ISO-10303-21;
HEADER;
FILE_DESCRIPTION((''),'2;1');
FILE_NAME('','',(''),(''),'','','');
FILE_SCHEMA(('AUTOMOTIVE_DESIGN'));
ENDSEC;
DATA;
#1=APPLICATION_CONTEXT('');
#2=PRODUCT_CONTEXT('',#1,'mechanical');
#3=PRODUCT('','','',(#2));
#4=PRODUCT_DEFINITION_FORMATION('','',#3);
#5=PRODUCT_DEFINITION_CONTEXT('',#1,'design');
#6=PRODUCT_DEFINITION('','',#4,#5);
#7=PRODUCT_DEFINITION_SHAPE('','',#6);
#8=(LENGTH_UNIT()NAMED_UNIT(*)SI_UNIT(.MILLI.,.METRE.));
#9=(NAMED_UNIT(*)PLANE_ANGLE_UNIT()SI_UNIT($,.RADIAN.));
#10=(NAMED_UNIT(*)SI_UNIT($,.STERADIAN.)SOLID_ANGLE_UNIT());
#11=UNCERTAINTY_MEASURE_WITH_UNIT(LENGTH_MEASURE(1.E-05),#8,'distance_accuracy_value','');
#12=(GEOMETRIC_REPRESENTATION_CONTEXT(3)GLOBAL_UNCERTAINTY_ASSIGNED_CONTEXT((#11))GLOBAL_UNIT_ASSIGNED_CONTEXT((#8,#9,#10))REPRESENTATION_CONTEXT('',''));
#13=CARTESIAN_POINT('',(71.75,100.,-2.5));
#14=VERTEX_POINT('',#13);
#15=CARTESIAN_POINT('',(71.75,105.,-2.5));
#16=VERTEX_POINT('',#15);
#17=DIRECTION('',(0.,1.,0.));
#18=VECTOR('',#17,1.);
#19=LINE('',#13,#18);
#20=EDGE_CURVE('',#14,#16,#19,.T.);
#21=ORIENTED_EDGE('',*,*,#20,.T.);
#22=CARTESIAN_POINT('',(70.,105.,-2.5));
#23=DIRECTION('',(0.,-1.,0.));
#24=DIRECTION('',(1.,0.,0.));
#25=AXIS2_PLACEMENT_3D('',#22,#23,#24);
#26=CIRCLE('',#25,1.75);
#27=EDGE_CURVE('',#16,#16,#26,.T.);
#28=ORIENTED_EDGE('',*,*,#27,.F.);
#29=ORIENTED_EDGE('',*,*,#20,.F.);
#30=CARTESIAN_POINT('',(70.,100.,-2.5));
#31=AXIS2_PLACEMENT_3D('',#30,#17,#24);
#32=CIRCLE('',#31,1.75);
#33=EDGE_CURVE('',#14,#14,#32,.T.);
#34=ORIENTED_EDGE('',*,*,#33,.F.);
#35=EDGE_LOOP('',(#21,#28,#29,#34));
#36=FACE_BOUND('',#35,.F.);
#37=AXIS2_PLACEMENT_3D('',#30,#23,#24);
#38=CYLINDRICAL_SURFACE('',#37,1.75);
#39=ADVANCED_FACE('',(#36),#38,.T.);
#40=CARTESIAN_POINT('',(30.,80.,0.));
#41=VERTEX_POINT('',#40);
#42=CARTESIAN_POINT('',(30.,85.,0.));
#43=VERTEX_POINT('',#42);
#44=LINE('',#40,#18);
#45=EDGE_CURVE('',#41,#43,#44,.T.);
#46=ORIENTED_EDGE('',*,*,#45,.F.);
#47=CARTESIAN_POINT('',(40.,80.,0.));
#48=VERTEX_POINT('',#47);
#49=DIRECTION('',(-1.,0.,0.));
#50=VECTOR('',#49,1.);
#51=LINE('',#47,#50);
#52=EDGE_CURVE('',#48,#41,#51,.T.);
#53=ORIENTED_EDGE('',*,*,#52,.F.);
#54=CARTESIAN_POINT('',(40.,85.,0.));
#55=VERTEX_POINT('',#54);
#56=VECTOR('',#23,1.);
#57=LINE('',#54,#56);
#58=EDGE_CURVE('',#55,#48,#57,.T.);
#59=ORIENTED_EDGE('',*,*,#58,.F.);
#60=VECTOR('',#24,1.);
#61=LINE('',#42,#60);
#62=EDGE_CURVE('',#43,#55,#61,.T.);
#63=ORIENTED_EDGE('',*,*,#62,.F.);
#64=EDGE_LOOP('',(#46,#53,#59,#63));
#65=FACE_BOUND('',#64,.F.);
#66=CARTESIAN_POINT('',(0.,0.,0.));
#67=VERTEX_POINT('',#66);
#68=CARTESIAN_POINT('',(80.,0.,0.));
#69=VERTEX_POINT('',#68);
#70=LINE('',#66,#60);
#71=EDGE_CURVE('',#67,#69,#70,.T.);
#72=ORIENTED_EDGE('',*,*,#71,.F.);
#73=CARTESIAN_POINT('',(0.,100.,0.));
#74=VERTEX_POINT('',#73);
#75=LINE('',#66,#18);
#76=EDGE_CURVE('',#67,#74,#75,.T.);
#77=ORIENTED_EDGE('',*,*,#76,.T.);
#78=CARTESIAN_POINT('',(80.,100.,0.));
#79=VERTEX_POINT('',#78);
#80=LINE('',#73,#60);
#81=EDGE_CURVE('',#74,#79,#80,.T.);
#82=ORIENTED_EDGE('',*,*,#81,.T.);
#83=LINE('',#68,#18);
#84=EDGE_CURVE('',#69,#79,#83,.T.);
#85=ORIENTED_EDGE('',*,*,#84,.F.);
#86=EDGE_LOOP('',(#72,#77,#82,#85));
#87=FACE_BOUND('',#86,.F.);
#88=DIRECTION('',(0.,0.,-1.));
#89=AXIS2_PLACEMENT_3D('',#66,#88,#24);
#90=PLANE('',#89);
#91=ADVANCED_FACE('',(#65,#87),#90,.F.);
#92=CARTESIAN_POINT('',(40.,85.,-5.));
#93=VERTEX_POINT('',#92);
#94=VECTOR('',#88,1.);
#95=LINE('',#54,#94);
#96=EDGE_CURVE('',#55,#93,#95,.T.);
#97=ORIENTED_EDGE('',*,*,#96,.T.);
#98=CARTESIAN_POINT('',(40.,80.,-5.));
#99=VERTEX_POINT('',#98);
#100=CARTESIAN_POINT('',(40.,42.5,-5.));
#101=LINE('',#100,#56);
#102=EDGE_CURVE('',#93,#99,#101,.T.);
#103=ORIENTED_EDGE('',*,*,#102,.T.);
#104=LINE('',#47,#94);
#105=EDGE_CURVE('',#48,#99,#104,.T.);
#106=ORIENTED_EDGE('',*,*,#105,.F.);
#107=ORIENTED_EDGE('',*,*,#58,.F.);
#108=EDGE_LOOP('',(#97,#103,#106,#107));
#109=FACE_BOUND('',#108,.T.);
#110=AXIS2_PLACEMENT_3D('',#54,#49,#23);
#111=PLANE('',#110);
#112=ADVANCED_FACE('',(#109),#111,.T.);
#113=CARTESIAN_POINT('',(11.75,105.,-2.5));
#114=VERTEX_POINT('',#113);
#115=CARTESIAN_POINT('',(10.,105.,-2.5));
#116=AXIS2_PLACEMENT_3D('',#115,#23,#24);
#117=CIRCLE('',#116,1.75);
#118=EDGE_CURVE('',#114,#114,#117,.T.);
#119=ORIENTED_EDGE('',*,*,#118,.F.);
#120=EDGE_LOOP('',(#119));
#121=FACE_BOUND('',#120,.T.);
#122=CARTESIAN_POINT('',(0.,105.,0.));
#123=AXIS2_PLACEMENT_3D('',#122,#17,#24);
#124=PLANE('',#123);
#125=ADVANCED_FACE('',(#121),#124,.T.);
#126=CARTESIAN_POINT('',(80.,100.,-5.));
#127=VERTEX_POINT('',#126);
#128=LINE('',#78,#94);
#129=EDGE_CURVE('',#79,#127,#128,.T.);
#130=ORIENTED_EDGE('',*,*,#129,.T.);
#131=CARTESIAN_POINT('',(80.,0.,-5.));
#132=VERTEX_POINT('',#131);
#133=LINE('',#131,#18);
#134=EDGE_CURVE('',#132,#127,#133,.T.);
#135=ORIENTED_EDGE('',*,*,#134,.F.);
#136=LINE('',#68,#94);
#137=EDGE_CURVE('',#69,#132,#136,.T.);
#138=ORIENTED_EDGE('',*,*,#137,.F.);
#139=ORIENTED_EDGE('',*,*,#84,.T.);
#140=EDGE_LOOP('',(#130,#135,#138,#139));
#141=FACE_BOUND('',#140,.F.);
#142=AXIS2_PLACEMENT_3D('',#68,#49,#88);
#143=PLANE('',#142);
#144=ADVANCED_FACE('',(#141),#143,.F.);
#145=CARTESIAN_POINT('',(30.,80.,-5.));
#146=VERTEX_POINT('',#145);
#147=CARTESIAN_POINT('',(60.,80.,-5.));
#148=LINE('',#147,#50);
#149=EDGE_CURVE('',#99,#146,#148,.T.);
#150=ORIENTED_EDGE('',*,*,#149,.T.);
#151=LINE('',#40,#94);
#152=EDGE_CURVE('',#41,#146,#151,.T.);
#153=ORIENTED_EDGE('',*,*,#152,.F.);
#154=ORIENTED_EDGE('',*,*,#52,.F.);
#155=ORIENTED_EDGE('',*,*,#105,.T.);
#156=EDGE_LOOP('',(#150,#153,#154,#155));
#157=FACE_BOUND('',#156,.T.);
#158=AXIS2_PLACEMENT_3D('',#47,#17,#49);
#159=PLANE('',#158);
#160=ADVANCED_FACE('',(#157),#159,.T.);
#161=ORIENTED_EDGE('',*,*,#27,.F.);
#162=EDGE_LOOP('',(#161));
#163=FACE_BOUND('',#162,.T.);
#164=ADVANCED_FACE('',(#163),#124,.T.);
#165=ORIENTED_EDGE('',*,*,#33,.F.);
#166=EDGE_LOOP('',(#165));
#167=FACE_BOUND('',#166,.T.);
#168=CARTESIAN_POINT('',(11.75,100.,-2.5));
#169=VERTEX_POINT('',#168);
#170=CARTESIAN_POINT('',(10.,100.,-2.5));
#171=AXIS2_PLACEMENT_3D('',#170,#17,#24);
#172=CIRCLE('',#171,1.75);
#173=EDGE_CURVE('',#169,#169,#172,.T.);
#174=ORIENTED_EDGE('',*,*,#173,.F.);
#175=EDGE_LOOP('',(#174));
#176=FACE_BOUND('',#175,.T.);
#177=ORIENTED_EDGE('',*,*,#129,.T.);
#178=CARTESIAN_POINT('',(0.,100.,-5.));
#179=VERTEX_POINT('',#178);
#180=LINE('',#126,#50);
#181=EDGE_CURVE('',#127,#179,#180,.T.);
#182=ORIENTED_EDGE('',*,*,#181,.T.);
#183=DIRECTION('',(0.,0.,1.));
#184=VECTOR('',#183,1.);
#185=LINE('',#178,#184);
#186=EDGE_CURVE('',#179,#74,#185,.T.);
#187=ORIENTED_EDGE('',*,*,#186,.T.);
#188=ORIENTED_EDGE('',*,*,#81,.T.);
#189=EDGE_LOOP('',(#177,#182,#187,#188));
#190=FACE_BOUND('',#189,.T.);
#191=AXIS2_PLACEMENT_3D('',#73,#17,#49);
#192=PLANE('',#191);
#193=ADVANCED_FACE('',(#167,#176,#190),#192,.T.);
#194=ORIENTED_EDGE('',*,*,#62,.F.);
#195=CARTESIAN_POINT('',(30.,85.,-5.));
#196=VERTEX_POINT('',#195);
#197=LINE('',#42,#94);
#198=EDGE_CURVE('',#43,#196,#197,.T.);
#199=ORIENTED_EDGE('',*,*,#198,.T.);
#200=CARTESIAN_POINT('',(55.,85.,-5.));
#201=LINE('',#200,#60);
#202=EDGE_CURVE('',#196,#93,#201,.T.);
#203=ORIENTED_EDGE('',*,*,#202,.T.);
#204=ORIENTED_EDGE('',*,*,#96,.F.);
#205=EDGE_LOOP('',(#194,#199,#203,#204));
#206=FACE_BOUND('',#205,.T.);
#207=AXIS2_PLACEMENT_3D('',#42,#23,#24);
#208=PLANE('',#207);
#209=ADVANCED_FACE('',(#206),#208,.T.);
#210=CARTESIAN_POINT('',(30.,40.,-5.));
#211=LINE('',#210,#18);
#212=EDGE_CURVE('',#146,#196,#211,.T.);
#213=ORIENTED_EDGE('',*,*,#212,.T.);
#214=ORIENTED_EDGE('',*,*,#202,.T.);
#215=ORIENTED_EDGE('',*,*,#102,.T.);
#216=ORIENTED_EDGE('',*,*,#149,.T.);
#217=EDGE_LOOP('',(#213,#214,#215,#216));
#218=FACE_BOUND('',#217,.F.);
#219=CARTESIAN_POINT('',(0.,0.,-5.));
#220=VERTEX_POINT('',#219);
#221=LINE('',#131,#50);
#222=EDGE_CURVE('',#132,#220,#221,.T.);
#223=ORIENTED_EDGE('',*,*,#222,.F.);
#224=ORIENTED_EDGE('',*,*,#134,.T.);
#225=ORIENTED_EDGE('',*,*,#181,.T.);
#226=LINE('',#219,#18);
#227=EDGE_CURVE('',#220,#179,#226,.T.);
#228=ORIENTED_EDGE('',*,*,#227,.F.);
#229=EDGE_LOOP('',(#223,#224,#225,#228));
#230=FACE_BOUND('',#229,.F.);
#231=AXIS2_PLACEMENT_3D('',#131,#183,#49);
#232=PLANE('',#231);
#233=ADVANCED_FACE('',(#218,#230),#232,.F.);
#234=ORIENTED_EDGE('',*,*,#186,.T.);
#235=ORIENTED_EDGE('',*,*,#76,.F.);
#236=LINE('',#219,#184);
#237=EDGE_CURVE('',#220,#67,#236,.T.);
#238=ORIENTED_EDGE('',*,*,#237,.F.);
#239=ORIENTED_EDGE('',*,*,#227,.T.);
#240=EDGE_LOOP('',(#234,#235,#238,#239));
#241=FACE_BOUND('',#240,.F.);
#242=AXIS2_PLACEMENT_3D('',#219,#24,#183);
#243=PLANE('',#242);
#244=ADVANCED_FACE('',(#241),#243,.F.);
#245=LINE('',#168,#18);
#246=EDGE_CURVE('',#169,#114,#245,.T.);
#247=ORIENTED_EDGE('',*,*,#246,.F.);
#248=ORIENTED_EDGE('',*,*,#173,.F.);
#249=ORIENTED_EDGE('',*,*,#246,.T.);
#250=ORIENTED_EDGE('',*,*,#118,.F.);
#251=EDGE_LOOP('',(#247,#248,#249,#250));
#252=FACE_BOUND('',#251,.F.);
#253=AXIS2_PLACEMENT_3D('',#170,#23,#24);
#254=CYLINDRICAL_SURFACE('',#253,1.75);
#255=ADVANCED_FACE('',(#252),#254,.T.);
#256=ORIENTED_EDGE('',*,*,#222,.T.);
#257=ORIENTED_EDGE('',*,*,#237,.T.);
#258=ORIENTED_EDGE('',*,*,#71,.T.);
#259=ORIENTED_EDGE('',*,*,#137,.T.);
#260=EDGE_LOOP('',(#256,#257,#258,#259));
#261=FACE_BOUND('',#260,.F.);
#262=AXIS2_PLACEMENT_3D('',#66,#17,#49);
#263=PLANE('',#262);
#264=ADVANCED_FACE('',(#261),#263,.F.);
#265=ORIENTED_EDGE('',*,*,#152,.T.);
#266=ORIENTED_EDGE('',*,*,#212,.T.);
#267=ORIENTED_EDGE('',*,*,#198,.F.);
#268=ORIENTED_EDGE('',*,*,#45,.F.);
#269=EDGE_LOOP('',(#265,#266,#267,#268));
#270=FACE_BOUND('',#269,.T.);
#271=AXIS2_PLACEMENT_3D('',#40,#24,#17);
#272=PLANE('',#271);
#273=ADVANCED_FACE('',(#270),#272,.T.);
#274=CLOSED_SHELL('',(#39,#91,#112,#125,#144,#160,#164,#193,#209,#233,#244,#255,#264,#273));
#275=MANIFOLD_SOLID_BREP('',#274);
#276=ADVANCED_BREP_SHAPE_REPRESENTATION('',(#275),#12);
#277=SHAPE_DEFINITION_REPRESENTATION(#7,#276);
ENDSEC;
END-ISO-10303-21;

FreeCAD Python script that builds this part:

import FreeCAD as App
import Part
import Sketcher
Q = App.Units.Quantity

doc = App.newDocument("Part")
body = doc.addObject("PartDesign::Body", "Body")

# Sketch on XZ plane
sketch1 = body.newObject("Sketcher::SketchObject", "Sketch")
sketch1.AttachmentSupport = (doc.getObject("XZ_Plane"), [""])
sketch1.MapMode = "FlatFace"
sketch1.addGeometry([
    Part.LineSegment(App.Vector(0, -5, 0), App.Vector(0, 0, 0)),
    Part.LineSegment(App.Vector(0, 0, 0), App.Vector(80, 0, 0)),
    Part.LineSegment(App.Vector(80, 0, 0), App.Vector(80, -5, 0)),
    Part.LineSegment(App.Vector(80, -5, 0), App.Vector(0, -5, 0)),
], False)
sketch1.addConstraint([
    Sketcher.Constraint("Coincident", 0, 2, 1, 1),
    Sketcher.Constraint("Coincident", 1, 2, 2, 1),
    Sketcher.Constraint("Coincident", 2, 2, 3, 1),
    Sketcher.Constraint("Coincident", 3, 2, 0, 1),
    Sketcher.Constraint("Vertical", 0),
    Sketcher.Constraint("Horizontal", 1),
    Sketcher.Constraint("Vertical", 2),
    Sketcher.Constraint("Horizontal", 3),
    Sketcher.Constraint("Coincident", 0, 2, -1, 1),
    Sketcher.Constraint("DistanceX", 1, 1, 1, 2, Q("80 mm")),
    Sketcher.Constraint("DistanceY", 0, 1, 0, 2, Q("5 mm")),
])
pad1 = body.newObject("PartDesign::Pad", "Pad")
pad1.Profile = sketch1
pad1.Length = 100
pad1.Reversed = True

# Sketch on XZ plane
sketch2 = body.newObject("Sketcher::SketchObject", "Sketch001")
sketch2.AttachmentSupport = (doc.getObject("XZ_Plane"), [""])
sketch2.MapMode = "FlatFace"
sketch2.AttachmentOffset = App.Placement(App.Vector(0, 0, -100), App.Rotation())
sketch2.addGeometry(Part.Circle(App.Vector(10, -2.5, 0), App.Vector(0, 0, 1), 1.75), False)
sketch2.addConstraint([
    Sketcher.Constraint("Diameter", 0, Q("3.5 mm")),
    Sketcher.Constraint("DistanceX", -1, 1, 0, 3, Q("10 mm")),
    Sketcher.Constraint("DistanceY", 0, 3, -1, 1, Q("2.5 mm")),
])
pad2 = body.newObject("PartDesign::Pad", "Pad001")
pad2.Profile = sketch2
pad2.Length = 5
pad2.Reversed = True

# Sketch on XZ plane
sketch3 = body.newObject("Sketcher::SketchObject", "Sketch002")
sketch3.AttachmentSupport = (doc.getObject("XZ_Plane"), [""])
sketch3.MapMode = "FlatFace"
sketch3.AttachmentOffset = App.Placement(App.Vector(0, 0, -100), App.Rotation())
sketch3.addGeometry(Part.Circle(App.Vector(70, -2.5, 0), App.Vector(0, 0, 1), 1.75), False)
sketch3.addConstraint([
    Sketcher.Constraint("Diameter", 0, Q("3.5 mm")),
    Sketcher.Constraint("DistanceY", 0, 3, -1, 1, Q("2.5 mm")),
    Sketcher.Constraint("DistanceX", -1, 1, 0, 3, Q("70 mm")),
])
pad3 = body.newObject("PartDesign::Pad", "Pad002")
pad3.Profile = sketch3
pad3.Length = 5
pad3.Reversed = True

# Sketch on XY plane
sketch4 = body.newObject("Sketcher::SketchObject", "Sketch003")
sketch4.AttachmentSupport = (doc.getObject("XY_Plane"), [""])
sketch4.MapMode = "FlatFace"
sketch4.addGeometry([
    Part.LineSegment(App.Vector(30, 80, 0), App.Vector(40, 80, 0)),
    Part.LineSegment(App.Vector(40, 80, 0), App.Vector(40, 85, 0)),
    Part.LineSegment(App.Vector(40, 85, 0), App.Vector(30, 85, 0)),
    Part.LineSegment(App.Vector(30, 85, 0), App.Vector(30, 80, 0)),
], False)
sketch4.addConstraint([
    Sketcher.Constraint("Coincident", 0, 2, 1, 1),
    Sketcher.Constraint("Coincident", 1, 2, 2, 1),
    Sketcher.Constraint("Coincident", 2, 2, 3, 1),
    Sketcher.Constraint("Coincident", 3, 2, 0, 1),
    Sketcher.Constraint("Horizontal", 0),
    Sketcher.Constraint("Vertical", 1),
    Sketcher.Constraint("Horizontal", 2),
    Sketcher.Constraint("Vertical", 3),
    Sketcher.Constraint("DistanceX", 0, 1, 0, 2, Q("10 mm")),
    Sketcher.Constraint("DistanceY", 1, 1, 1, 2, Q("5 mm")),
    Sketcher.Constraint("DistanceX", -1, 1, 0, 2, Q("40 mm")),
    Sketcher.Constraint("DistanceY", -1, 1, 0, 2, Q("80 mm")),
])
pocket1 = body.newObject("PartDesign::Pocket", "Pocket")
pocket1.Profile = sketch4
pocket1.Length = 10

doc.recompute()
